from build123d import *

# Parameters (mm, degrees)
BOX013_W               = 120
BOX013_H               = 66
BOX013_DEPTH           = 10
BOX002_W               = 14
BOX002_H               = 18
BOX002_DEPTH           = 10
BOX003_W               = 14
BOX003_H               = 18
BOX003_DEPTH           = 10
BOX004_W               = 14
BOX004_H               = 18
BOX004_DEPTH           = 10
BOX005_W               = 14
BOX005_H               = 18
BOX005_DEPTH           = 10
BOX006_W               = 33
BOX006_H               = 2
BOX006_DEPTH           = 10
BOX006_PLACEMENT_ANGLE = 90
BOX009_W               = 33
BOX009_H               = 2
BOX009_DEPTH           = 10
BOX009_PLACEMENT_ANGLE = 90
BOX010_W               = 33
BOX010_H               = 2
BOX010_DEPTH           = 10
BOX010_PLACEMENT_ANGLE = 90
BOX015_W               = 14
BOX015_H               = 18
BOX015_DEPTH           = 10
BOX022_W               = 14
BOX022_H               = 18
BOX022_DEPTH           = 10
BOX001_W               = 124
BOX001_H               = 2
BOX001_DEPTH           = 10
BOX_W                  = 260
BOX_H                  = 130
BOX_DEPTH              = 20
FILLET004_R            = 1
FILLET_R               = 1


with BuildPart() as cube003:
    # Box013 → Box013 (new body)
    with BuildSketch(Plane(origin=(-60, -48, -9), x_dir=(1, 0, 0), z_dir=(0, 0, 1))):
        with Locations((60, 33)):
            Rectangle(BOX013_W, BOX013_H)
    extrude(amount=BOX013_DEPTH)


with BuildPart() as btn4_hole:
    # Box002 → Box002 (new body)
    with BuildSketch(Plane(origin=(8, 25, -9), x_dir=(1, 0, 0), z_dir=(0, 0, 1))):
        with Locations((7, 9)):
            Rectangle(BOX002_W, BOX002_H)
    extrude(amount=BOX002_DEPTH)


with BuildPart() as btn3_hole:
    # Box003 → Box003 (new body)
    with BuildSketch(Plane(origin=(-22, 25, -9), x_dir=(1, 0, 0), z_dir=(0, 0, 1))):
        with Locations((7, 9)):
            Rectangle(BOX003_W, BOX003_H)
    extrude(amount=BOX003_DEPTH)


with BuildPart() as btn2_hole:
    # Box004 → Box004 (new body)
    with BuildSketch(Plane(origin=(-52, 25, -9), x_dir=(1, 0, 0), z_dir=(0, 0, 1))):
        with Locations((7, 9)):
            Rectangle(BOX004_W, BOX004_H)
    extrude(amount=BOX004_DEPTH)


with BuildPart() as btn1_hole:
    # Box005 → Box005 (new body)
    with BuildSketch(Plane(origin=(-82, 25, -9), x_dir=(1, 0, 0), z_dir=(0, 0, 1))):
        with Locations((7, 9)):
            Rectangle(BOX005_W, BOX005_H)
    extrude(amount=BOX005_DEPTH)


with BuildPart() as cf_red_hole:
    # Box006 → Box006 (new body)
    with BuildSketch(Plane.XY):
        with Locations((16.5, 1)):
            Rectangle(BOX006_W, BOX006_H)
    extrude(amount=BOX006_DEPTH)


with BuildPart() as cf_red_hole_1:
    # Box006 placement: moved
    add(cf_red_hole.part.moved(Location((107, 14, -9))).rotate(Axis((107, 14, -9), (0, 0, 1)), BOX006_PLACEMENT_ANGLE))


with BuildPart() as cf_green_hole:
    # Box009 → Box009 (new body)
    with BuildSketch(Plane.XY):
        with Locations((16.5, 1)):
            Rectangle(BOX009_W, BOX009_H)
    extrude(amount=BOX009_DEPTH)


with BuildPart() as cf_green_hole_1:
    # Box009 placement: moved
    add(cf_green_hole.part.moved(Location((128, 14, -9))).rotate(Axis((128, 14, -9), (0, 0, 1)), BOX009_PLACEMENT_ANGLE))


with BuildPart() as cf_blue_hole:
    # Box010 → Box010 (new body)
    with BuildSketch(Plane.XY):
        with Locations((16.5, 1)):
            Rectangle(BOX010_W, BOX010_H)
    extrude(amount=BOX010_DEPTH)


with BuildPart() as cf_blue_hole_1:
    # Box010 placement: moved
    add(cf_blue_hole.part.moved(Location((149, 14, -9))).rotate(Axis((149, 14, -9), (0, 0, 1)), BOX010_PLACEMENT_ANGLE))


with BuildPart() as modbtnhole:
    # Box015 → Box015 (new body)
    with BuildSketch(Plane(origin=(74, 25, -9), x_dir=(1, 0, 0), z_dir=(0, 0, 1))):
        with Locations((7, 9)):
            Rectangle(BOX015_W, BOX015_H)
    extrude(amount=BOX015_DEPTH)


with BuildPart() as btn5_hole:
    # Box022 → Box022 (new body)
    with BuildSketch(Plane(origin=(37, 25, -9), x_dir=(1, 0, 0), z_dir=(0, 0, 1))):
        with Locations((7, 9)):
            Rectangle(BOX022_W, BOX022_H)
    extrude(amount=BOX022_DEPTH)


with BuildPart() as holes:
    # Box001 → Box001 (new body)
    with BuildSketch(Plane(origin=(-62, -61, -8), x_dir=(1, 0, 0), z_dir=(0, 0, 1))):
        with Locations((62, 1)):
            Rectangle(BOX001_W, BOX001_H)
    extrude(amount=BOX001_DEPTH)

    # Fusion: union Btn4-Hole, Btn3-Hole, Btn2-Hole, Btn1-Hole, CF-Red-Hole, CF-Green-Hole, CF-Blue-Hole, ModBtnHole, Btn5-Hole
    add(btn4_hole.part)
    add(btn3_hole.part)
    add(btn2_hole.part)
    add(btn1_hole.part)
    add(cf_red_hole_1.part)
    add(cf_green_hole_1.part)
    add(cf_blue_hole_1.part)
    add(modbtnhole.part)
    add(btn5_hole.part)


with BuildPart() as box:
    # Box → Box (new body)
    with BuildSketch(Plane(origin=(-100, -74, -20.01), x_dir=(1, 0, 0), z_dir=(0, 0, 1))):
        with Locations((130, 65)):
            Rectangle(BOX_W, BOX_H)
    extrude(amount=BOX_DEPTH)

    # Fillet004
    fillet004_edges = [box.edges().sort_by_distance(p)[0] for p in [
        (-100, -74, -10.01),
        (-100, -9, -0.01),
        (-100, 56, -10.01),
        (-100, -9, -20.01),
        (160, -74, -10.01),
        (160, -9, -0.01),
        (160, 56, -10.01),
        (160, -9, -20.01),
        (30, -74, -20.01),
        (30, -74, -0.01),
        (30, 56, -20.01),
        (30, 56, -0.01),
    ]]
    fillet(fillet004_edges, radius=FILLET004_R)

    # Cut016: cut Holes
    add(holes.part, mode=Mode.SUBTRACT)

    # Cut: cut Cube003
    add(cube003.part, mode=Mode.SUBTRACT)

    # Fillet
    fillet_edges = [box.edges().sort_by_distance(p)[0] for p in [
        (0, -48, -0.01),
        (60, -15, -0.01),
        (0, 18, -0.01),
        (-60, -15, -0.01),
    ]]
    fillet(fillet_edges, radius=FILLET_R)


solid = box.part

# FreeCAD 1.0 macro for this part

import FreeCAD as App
import Part
import Sketcher

V = App.Vector


def edges_at(feature, points):
    """Names of the edges that pass closest to the given points."""
    edges = feature.Shape.Edges
    near = lambda p: min(range(len(edges)), key=lambda i: edges[i].distToShape(Part.Vertex(*p))[0])
    return sorted({f"Edge{near(p) + 1}" for p in points})


def add_polygon(sketch, points):
    """Adds a closed chain of lines whose ends are joined by coincident constraints."""
    first, n = sketch.GeometryCount, len(points)
    for a, b in zip(points, points[1:] + points[:1]):
        sketch.addGeometry(Part.LineSegment(App.Vector(*a, 0), App.Vector(*b, 0)), False)
    for i in range(n):
        sketch.addConstraint(Sketcher.Constraint("Coincident", first + i, 2, first + (i + 1) % n, 1))

doc = App.newDocument("Part")
body = doc.addObject("PartDesign::Body", "Body")

sketch1 = body.newObject("Sketcher::SketchObject", "Sketch")
sketch1.AttachmentSupport = (doc.getObject("XY_Plane"), [""])
sketch1.MapMode = "FlatFace"
sketch1.AttachmentOffset = App.Placement(V(0, 0, -9), App.Rotation())
add_polygon(sketch1, [(-60, 18), (-60, -48), (60, -48), (60, 18)])
sketch1.addConstraint(Sketcher.Constraint("Vertical", 0))
sketch1.addConstraint(Sketcher.Constraint("Horizontal", 1))
sketch1.addConstraint(Sketcher.Constraint("Vertical", 2))
sketch1.addConstraint(Sketcher.Constraint("Horizontal", 3))
sketch1.addConstraint(Sketcher.Constraint("DistanceX", 1, 1, 1, 2, 120.0))
sketch1.addConstraint(Sketcher.Constraint("DistanceY", 0, 2, 0, 1, 66.0))
sketch1.addConstraint(Sketcher.Constraint("DistanceX", 0, 2, -1, 1, 60.0))
sketch1.addConstraint(Sketcher.Constraint("DistanceY", 0, 2, -1, 1, 48.0))
pad1 = body.newObject("PartDesign::Pad", "Pad")
pad1.Profile = sketch1
pad1.Length = 10
body2 = doc.addObject("PartDesign::Body", "Body001")

sketch2 = body2.newObject("Sketcher::SketchObject", "Sketch001")
sketch2.AttachmentSupport = (doc.getObject("XY_Plane001"), [""])
sketch2.MapMode = "FlatFace"
sketch2.AttachmentOffset = App.Placement(V(0, 0, -9), App.Rotation())
add_polygon(sketch2, [(8, 43), (8, 25), (22, 25), (22, 43)])
sketch2.addConstraint(Sketcher.Constraint("Vertical", 0))
sketch2.addConstraint(Sketcher.Constraint("Horizontal", 1))
sketch2.addConstraint(Sketcher.Constraint("Vertical", 2))
sketch2.addConstraint(Sketcher.Constraint("Horizontal", 3))
sketch2.addConstraint(Sketcher.Constraint("DistanceX", 1, 1, 1, 2, 14.0))
sketch2.addConstraint(Sketcher.Constraint("DistanceY", 0, 2, 0, 1, 18.0))
sketch2.addConstraint(Sketcher.Constraint("DistanceX", -1, 1, 0, 2, 8.0))
sketch2.addConstraint(Sketcher.Constraint("DistanceY", -1, 1, 0, 2, 25.0))
pad2 = body2.newObject("PartDesign::Pad", "Pad001")
pad2.Profile = sketch2
pad2.Length = 10
body3 = doc.addObject("PartDesign::Body", "Body002")

sketch3 = body3.newObject("Sketcher::SketchObject", "Sketch002")
sketch3.AttachmentSupport = (doc.getObject("XY_Plane002"), [""])
sketch3.MapMode = "FlatFace"
sketch3.AttachmentOffset = App.Placement(V(0, 0, -9), App.Rotation())
add_polygon(sketch3, [(-22, 43), (-22, 25), (-8, 25), (-8, 43)])
sketch3.addConstraint(Sketcher.Constraint("Vertical", 0))
sketch3.addConstraint(Sketcher.Constraint("Horizontal", 1))
sketch3.addConstraint(Sketcher.Constraint("Vertical", 2))
sketch3.addConstraint(Sketcher.Constraint("Horizontal", 3))
sketch3.addConstraint(Sketcher.Constraint("DistanceX", 1, 1, 1, 2, 14.0))
sketch3.addConstraint(Sketcher.Constraint("DistanceY", 0, 2, 0, 1, 18.0))
sketch3.addConstraint(Sketcher.Constraint("DistanceX", 0, 2, -1, 1, 22.0))
sketch3.addConstraint(Sketcher.Constraint("DistanceY", -1, 1, 0, 2, 25.0))
pad3 = body3.newObject("PartDesign::Pad", "Pad002")
pad3.Profile = sketch3
pad3.Length = 10
body4 = doc.addObject("PartDesign::Body", "Body003")

sketch4 = body4.newObject("Sketcher::SketchObject", "Sketch003")
sketch4.AttachmentSupport = (doc.getObject("XY_Plane003"), [""])
sketch4.MapMode = "FlatFace"
sketch4.AttachmentOffset = App.Placement(V(0, 0, -9), App.Rotation())
add_polygon(sketch4, [(-52, 43), (-52, 25), (-38, 25), (-38, 43)])
sketch4.addConstraint(Sketcher.Constraint("Vertical", 0))
sketch4.addConstraint(Sketcher.Constraint("Horizontal", 1))
sketch4.addConstraint(Sketcher.Constraint("Vertical", 2))
sketch4.addConstraint(Sketcher.Constraint("Horizontal", 3))
sketch4.addConstraint(Sketcher.Constraint("DistanceX", 1, 1, 1, 2, 14.0))
sketch4.addConstraint(Sketcher.Constraint("DistanceY", 0, 2, 0, 1, 18.0))
sketch4.addConstraint(Sketcher.Constraint("DistanceX", 0, 2, -1, 1, 52.0))
sketch4.addConstraint(Sketcher.Constraint("DistanceY", -1, 1, 0, 2, 25.0))
pad4 = body4.newObject("PartDesign::Pad", "Pad003")
pad4.Profile = sketch4
pad4.Length = 10
body5 = doc.addObject("PartDesign::Body", "Body004")

sketch5 = body5.newObject("Sketcher::SketchObject", "Sketch004")
sketch5.AttachmentSupport = (doc.getObject("XY_Plane004"), [""])
sketch5.MapMode = "FlatFace"
sketch5.AttachmentOffset = App.Placement(V(0, 0, -9), App.Rotation())
add_polygon(sketch5, [(-82, 43), (-82, 25), (-68, 25), (-68, 43)])
sketch5.addConstraint(Sketcher.Constraint("Vertical", 0))
sketch5.addConstraint(Sketcher.Constraint("Horizontal", 1))
sketch5.addConstraint(Sketcher.Constraint("Vertical", 2))
sketch5.addConstraint(Sketcher.Constraint("Horizontal", 3))
sketch5.addConstraint(Sketcher.Constraint("DistanceX", 1, 1, 1, 2, 14.0))
sketch5.addConstraint(Sketcher.Constraint("DistanceY", 0, 2, 0, 1, 18.0))
sketch5.addConstraint(Sketcher.Constraint("DistanceX", 0, 2, -1, 1, 82.0))
sketch5.addConstraint(Sketcher.Constraint("DistanceY", -1, 1, 0, 2, 25.0))
pad5 = body5.newObject("PartDesign::Pad", "Pad004")
pad5.Profile = sketch5
pad5.Length = 10
body6 = doc.addObject("PartDesign::Body", "Body005")

sketch6 = body6.newObject("Sketcher::SketchObject", "Sketch005")
sketch6.AttachmentSupport = (doc.getObject("XY_Plane005"), [""])
sketch6.MapMode = "FlatFace"
add_polygon(sketch6, [(0, 2), (0, 0), (33, 0), (33, 2)])
sketch6.addConstraint(Sketcher.Constraint("Vertical", 0))
sketch6.addConstraint(Sketcher.Constraint("Horizontal", 1))
sketch6.addConstraint(Sketcher.Constraint("Vertical", 2))
sketch6.addConstraint(Sketcher.Constraint("Horizontal", 3))
sketch6.addConstraint(Sketcher.Constraint("Coincident", 0, 2, -1, 1))
sketch6.addConstraint(Sketcher.Constraint("DistanceX", 1, 1, 1, 2, 33.0))
sketch6.addConstraint(Sketcher.Constraint("DistanceY", 0, 2, 0, 1, 2.0))
pad6 = body6.newObject("PartDesign::Pad", "Pad005")
pad6.Profile = sketch6
pad6.Length = 10
body7 = doc.addObject("PartDesign::Body", "Body006")
doc.recompute()

body6.Placement = App.Placement(V(107, 14, -9), App.Rotation(V(0, 0, 1), 90))
boolean = body7.newObject("PartDesign::Boolean", "Boolean")
boolean.Type = "Fuse"
boolean.addObjects([body6])
body8 = doc.addObject("PartDesign::Body", "Body007")

sketch7 = body8.newObject("Sketcher::SketchObject", "Sketch006")
sketch7.AttachmentSupport = (doc.getObject("XY_Plane007"), [""])
sketch7.MapMode = "FlatFace"
add_polygon(sketch7, [(0, 2), (0, 0), (33, 0), (33, 2)])
sketch7.addConstraint(Sketcher.Constraint("Vertical", 0))
sketch7.addConstraint(Sketcher.Constraint("Horizontal", 1))
sketch7.addConstraint(Sketcher.Constraint("Vertical", 2))
sketch7.addConstraint(Sketcher.Constraint("Horizontal", 3))
sketch7.addConstraint(Sketcher.Constraint("Coincident", 0, 2, -1, 1))
sketch7.addConstraint(Sketcher.Constraint("DistanceX", 1, 1, 1, 2, 33.0))
sketch7.addConstraint(Sketcher.Constraint("DistanceY", 0, 2, 0, 1, 2.0))
pad7 = body8.newObject("PartDesign::Pad", "Pad006")
pad7.Profile = sketch7
pad7.Length = 10
body9 = doc.addObject("PartDesign::Body", "Body008")
doc.recompute()

body8.Placement = App.Placement(V(128, 14, -9), App.Rotation(V(0, 0, 1), 90))
boolean2 = body9.newObject("PartDesign::Boolean", "Boolean001")
boolean2.Type = "Fuse"
boolean2.addObjects([body8])
body10 = doc.addObject("PartDesign::Body", "Body009")

sketch8 = body10.newObject("Sketcher::SketchObject", "Sketch007")
sketch8.AttachmentSupport = (doc.getObject("XY_Plane009"), [""])
sketch8.MapMode = "FlatFace"
add_polygon(sketch8, [(0, 2), (0, 0), (33, 0), (33, 2)])
sketch8.addConstraint(Sketcher.Constraint("Vertical", 0))
sketch8.addConstraint(Sketcher.Constraint("Horizontal", 1))
sketch8.addConstraint(Sketcher.Constraint("Vertical", 2))
sketch8.addConstraint(Sketcher.Constraint("Horizontal", 3))
sketch8.addConstraint(Sketcher.Constraint("Coincident", 0, 2, -1, 1))
sketch8.addConstraint(Sketcher.Constraint("DistanceX", 1, 1, 1, 2, 33.0))
sketch8.addConstraint(Sketcher.Constraint("DistanceY", 0, 2, 0, 1, 2.0))
pad8 = body10.newObject("PartDesign::Pad", "Pad007")
pad8.Profile = sketch8
pad8.Length = 10
body11 = doc.addObject("PartDesign::Body", "Body010")
doc.recompute()

body10.Placement = App.Placement(V(149, 14, -9), App.Rotation(V(0, 0, 1), 90))
boolean3 = body11.newObject("PartDesign::Boolean", "Boolean002")
boolean3.Type = "Fuse"
boolean3.addObjects([body10])
body12 = doc.addObject("PartDesign::Body", "Body011")

sketch9 = body12.newObject("Sketcher::SketchObject", "Sketch008")
sketch9.AttachmentSupport = (doc.getObject("XY_Plane011"), [""])
sketch9.MapMode = "FlatFace"
sketch9.AttachmentOffset = App.Placement(V(0, 0, -9), App.Rotation())
add_polygon(sketch9, [(74, 43), (74, 25), (88, 25), (88, 43)])
sketch9.addConstraint(Sketcher.Constraint("Vertical", 0))
sketch9.addConstraint(Sketcher.Constraint("Horizontal", 1))
sketch9.addConstraint(Sketcher.Constraint("Vertical", 2))
sketch9.addConstraint(Sketcher.Constraint("Horizontal", 3))
sketch9.addConstraint(Sketcher.Constraint("DistanceX", 1, 1, 1, 2, 14.0))
sketch9.addConstraint(Sketcher.Constraint("DistanceY", 0, 2, 0, 1, 18.0))
sketch9.addConstraint(Sketcher.Constraint("DistanceX", -1, 1, 0, 2, 74.0))
sketch9.addConstraint(Sketcher.Constraint("DistanceY", -1, 1, 0, 2, 25.0))
pad9 = body12.newObject("PartDesign::Pad", "Pad008")
pad9.Profile = sketch9
pad9.Length = 10
body13 = doc.addObject("PartDesign::Body", "Body012")

sketch10 = body13.newObject("Sketcher::SketchObject", "Sketch009")
sketch10.AttachmentSupport = (doc.getObject("XY_Plane012"), [""])
sketch10.MapMode = "FlatFace"
sketch10.AttachmentOffset = App.Placement(V(0, 0, -9), App.Rotation())
add_polygon(sketch10, [(37, 43), (37, 25), (51, 25), (51, 43)])
sketch10.addConstraint(Sketcher.Constraint("Vertical", 0))
sketch10.addConstraint(Sketcher.Constraint("Horizontal", 1))
sketch10.addConstraint(Sketcher.Constraint("Vertical", 2))
sketch10.addConstraint(Sketcher.Constraint("Horizontal", 3))
sketch10.addConstraint(Sketcher.Constraint("DistanceX", 1, 1, 1, 2, 14.0))
sketch10.addConstraint(Sketcher.Constraint("DistanceY", 0, 2, 0, 1, 18.0))
sketch10.addConstraint(Sketcher.Constraint("DistanceX", -1, 1, 0, 2, 37.0))
sketch10.addConstraint(Sketcher.Constraint("DistanceY", -1, 1, 0, 2, 25.0))
pad10 = body13.newObject("PartDesign::Pad", "Pad009")
pad10.Profile = sketch10
pad10.Length = 10
body14 = doc.addObject("PartDesign::Body", "Body013")
body14.AllowCompound = True

sketch11 = body14.newObject("Sketcher::SketchObject", "Sketch010")
sketch11.AttachmentSupport = (doc.getObject("XY_Plane013"), [""])
sketch11.MapMode = "FlatFace"
sketch11.AttachmentOffset = App.Placement(V(0, 0, -8), App.Rotation())
add_polygon(sketch11, [(-62, -59), (-62, -61), (62, -61), (62, -59)])
sketch11.addConstraint(Sketcher.Constraint("Vertical", 0))
sketch11.addConstraint(Sketcher.Constraint("Horizontal", 1))
sketch11.addConstraint(Sketcher.Constraint("Vertical", 2))
sketch11.addConstraint(Sketcher.Constraint("Horizontal", 3))
sketch11.addConstraint(Sketcher.Constraint("DistanceX", 1, 1, 1, 2, 124.0))
sketch11.addConstraint(Sketcher.Constraint("DistanceY", 0, 2, 0, 1, 2.0))
sketch11.addConstraint(Sketcher.Constraint("DistanceX", 0, 2, -1, 1, 62.0))
sketch11.addConstraint(Sketcher.Constraint("DistanceY", 0, 2, -1, 1, 61.0))
pad11 = body14.newObject("PartDesign::Pad", "Pad010")
pad11.Profile = sketch11
pad11.Length = 10
doc.recompute()

boolean4 = body14.newObject("PartDesign::Boolean", "Boolean003")
boolean4.Type = "Fuse"
boolean4.addObjects([body2])
doc.recompute()

boolean5 = body14.newObject("PartDesign::Boolean", "Boolean004")
boolean5.Type = "Fuse"
boolean5.addObjects([body3])
doc.recompute()

boolean6 = body14.newObject("PartDesign::Boolean", "Boolean005")
boolean6.Type = "Fuse"
boolean6.addObjects([body4])
doc.recompute()

boolean7 = body14.newObject("PartDesign::Boolean", "Boolean006")
boolean7.Type = "Fuse"
boolean7.addObjects([body5])
doc.recompute()

boolean8 = body14.newObject("PartDesign::Boolean", "Boolean007")
boolean8.Type = "Fuse"
boolean8.addObjects([body7])
doc.recompute()

boolean9 = body14.newObject("PartDesign::Boolean", "Boolean008")
boolean9.Type = "Fuse"
boolean9.addObjects([body9])
doc.recompute()

boolean10 = body14.newObject("PartDesign::Boolean", "Boolean009")
boolean10.Type = "Fuse"
boolean10.addObjects([body11])
doc.recompute()

boolean11 = body14.newObject("PartDesign::Boolean", "Boolean010")
boolean11.Type = "Fuse"
boolean11.addObjects([body12])
doc.recompute()

boolean12 = body14.newObject("PartDesign::Boolean", "Boolean011")
boolean12.Type = "Fuse"
boolean12.addObjects([body13])
body15 = doc.addObject("PartDesign::Body", "Body014")

sketch12 = body15.newObject("Sketcher::SketchObject", "Sketch011")
sketch12.AttachmentSupport = (doc.getObject("XY_Plane014"), [""])
sketch12.MapMode = "FlatFace"
sketch12.AttachmentOffset = App.Placement(V(0, 0, -20.01), App.Rotation())
add_polygon(sketch12, [(-100, 56), (-100, -74), (160, -74), (160, 56)])
sketch12.addConstraint(Sketcher.Constraint("Vertical", 0))
sketch12.addConstraint(Sketcher.Constraint("Horizontal", 1))
sketch12.addConstraint(Sketcher.Constraint("Vertical", 2))
sketch12.addConstraint(Sketcher.Constraint("Horizontal", 3))
sketch12.addConstraint(Sketcher.Constraint("DistanceX", 1, 1, 1, 2, 260.0))
sketch12.addConstraint(Sketcher.Constraint("DistanceY", 0, 2, 0, 1, 130.0))
sketch12.addConstraint(Sketcher.Constraint("DistanceX", 0, 2, -1, 1, 100.0))
sketch12.addConstraint(Sketcher.Constraint("DistanceY", 0, 2, -1, 1, 74.0))
pad12 = body15.newObject("PartDesign::Pad", "Pad011")
pad12.Profile = sketch12
pad12.Length = 20
doc.recompute()

fillet = body15.newObject("PartDesign::Fillet", "Fillet")
fillet.Base = (pad12, ["Edge1"])
fillet.UseAllEdges = True
fillet.Radius = 1
doc.recompute()

boolean13 = body15.newObject("PartDesign::Boolean", "Boolean012")
boolean13.Type = "Cut"
boolean13.addObjects([body14])
doc.recompute()

boolean14 = body15.newObject("PartDesign::Boolean", "Boolean013")
boolean14.Type = "Cut"
boolean14.addObjects([body])
doc.recompute()

fillet2 = body15.newObject("PartDesign::Fillet", "Fillet001")
fillet2.Base = (boolean14, edges_at(boolean14, [
    (0, -48, -0.01),
    (60, -15, -0.01),
    (0, 18, -0.01),
    (-60, -15, -0.01),
]))
fillet2.Radius = 1

doc.recompute()
